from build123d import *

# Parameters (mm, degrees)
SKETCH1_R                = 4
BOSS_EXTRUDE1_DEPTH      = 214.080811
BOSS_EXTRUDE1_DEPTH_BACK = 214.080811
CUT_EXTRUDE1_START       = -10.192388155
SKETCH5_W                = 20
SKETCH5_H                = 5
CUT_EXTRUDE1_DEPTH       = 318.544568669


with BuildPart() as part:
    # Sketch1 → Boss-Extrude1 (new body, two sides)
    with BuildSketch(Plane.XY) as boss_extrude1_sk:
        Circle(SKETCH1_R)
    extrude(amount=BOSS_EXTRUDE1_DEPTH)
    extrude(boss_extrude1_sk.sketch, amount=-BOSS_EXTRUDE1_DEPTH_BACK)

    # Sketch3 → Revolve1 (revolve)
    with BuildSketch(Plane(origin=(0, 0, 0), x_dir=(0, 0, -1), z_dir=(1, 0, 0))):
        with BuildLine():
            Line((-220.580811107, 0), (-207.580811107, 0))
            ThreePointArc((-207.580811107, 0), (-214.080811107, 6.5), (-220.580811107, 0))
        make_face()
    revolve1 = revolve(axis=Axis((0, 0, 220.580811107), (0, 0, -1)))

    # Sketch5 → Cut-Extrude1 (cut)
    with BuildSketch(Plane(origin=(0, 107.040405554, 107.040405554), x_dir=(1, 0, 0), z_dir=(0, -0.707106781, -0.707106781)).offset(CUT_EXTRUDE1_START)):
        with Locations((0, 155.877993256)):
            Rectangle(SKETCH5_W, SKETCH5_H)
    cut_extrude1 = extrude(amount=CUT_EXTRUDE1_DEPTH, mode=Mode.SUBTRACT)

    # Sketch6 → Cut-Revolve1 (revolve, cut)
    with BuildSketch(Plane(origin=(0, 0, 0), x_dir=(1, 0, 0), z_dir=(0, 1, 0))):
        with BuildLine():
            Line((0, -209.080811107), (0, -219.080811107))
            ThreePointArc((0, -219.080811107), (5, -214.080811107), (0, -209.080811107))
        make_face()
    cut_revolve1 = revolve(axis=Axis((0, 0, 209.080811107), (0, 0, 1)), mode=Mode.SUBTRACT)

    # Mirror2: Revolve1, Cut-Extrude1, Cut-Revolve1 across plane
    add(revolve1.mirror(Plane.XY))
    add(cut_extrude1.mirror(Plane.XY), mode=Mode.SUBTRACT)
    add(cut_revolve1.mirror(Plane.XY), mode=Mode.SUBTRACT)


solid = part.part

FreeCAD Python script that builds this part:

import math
import FreeCAD as App
import Part
import Sketcher
Q = App.Units.Quantity

doc = App.newDocument("Part")
body = doc.addObject("PartDesign::Body", "Body")

# Sketch on XY plane
sketch1 = doc.addObject("Sketcher::SketchObject", "Sketch")
body.addObject(sketch1)
sketch1.AttachmentSupport = (doc.XY_Plane, [""])
sketch1.MapMode = "FlatFace"
sketch1.addGeometry(Part.Circle(App.Vector(0, 0, 0), App.Vector(0, 0, 1), 4), False)
sketch1.addConstraint([
    Sketcher.Constraint("Coincident", 0, 3, -1, 1),
    Sketcher.Constraint("Diameter", 0, Q("8 mm")),
])
pad1 = doc.addObject("PartDesign::Pad", "Pad")
body.addObject(pad1)
pad1.Profile = sketch1
pad1.Type = "TwoLengths"
pad1.Length = 214.080811
pad1.Length2 = 214.080811

# Sketch on YZ plane
sketch2 = doc.addObject("Sketcher::SketchObject", "Sketch001")
body.addObject(sketch2)
sketch2.AttachmentSupport = (doc.YZ_Plane, [""])
sketch2.MapMode = "FlatFace"
sketch2.addGeometry([
    Part.LineSegment(App.Vector(0, 221, 0), App.Vector(0, 208, 0)),
    Part.ArcOfCircle(Part.Circle(App.Vector(0, 214, 0), App.Vector(0, 0, 1), 6), math.radians(-90), math.radians(90)),
], False)
sketch2.addConstraint([
    Sketcher.Constraint("Coincident", 0, 1, 1, 2),
    Sketcher.Constraint("Coincident", 1, 1, 0, 2),
    Sketcher.Constraint("Vertical", 0),
    Sketcher.Constraint("PointOnObject", 1, 3, -2),
    Sketcher.Constraint("PointOnObject", 0, 1, -2),
    Sketcher.Constraint("Radius", 1, Q("6.5 mm")),
    Sketcher.Constraint("DistanceY", -1, 1, 1, 3, Q("214.080811 mm")),
])
revolution = doc.addObject("PartDesign::Revolution", "Revolution")
body.addObject(revolution)
revolution.Profile = sketch2
revolution.ReferenceAxis = (sketch2, ["V_Axis"])
revolution.Angle = 360

# Sketch on an angled plane
sketch3 = doc.addObject("Sketcher::SketchObject", "Sketch002")
body.addObject(sketch3)
sketch3.Placement = App.Placement(App.Vector(0, 114.247512, 114.247512), App.Rotation(App.Vector(1, 0, 0), App.Vector(0, -0.707106781, 0.707106781), App.Vector(0, -0.707106781, -0.707106781), "ZXY"))
sketch3.addGeometry([
    Part.LineSegment(App.Vector(-10, 158.4, 0), App.Vector(-10, 153.4, 0)),
    Part.LineSegment(App.Vector(-10, 153.4, 0), App.Vector(10, 153.4, 0)),
    Part.LineSegment(App.Vector(10, 153.4, 0), App.Vector(10, 158.4, 0)),
    Part.LineSegment(App.Vector(10, 158.4, 0), App.Vector(-10, 158.4, 0)),
], False)
sketch3.addConstraint([
    Sketcher.Constraint("Coincident", 0, 2, 1, 1),
    Sketcher.Constraint("Coincident", 1, 2, 2, 1),
    Sketcher.Constraint("Coincident", 2, 2, 3, 1),
    Sketcher.Constraint("Coincident", 3, 2, 0, 1),
    Sketcher.Constraint("Vertical", 0),
    Sketcher.Constraint("Horizontal", 1),
    Sketcher.Constraint("Vertical", 2),
    Sketcher.Constraint("Horizontal", 3),
    Sketcher.Constraint("DistanceX", 1, 1, 1, 2, Q("20 mm")),
    Sketcher.Constraint("DistanceY", 0, 2, 0, 1, Q("5 mm")),
    Sketcher.Constraint("DistanceX", 0, 2, -1, 1, Q("10 mm")),
    Sketcher.Constraint("DistanceY", -1, 1, 0, 2, Q("153.377993 mm")),
])
pocket1 = doc.addObject("PartDesign::Pocket", "Pocket")
body.addObject(pocket1)
pocket1.Profile = sketch3
pocket1.Length = 318.544569
pocket1.Reversed = True

# Sketch on XZ plane
sketch4 = doc.addObject("Sketcher::SketchObject", "Sketch003")
body.addObject(sketch4)
sketch4.AttachmentSupport = (doc.XZ_Plane, [""])
sketch4.MapMode = "FlatFace"
sketch4.addGeometry([
    Part.LineSegment(App.Vector(0, 209, 0), App.Vector(0, 219, 0)),
    Part.ArcOfCircle(Part.Circle(App.Vector(0, 214, 0), App.Vector(0, 0, 1), 5), math.radians(-90), math.radians(90)),
], False)
sketch4.addConstraint([
    Sketcher.Constraint("Coincident", 0, 1, 1, 1),
    Sketcher.Constraint("Coincident", 1, 2, 0, 2),
    Sketcher.Constraint("Vertical", 0),
    Sketcher.Constraint("PointOnObject", 1, 3, -2),
    Sketcher.Constraint("PointOnObject", 0, 1, -2),
    Sketcher.Constraint("Radius", 1, Q("5 mm")),
    Sketcher.Constraint("DistanceY", -1, 1, 1, 3, Q("214.080811 mm")),
])
groove = doc.addObject("PartDesign::Groove", "Groove")
body.addObject(groove)
groove.Profile = sketch4
groove.ReferenceAxis = (sketch4, ["V_Axis"])
groove.Angle = 360
doc.recompute()

mirrored = doc.addObject("PartDesign::Mirrored", "Mirrored")
body.addObject(mirrored)
mirrored.Originals = [revolution, pocket1, groove]
mirrored.MirrorPlane = (doc.XY_Plane, [""])
body.Tip = mirrored

doc.recompute()
